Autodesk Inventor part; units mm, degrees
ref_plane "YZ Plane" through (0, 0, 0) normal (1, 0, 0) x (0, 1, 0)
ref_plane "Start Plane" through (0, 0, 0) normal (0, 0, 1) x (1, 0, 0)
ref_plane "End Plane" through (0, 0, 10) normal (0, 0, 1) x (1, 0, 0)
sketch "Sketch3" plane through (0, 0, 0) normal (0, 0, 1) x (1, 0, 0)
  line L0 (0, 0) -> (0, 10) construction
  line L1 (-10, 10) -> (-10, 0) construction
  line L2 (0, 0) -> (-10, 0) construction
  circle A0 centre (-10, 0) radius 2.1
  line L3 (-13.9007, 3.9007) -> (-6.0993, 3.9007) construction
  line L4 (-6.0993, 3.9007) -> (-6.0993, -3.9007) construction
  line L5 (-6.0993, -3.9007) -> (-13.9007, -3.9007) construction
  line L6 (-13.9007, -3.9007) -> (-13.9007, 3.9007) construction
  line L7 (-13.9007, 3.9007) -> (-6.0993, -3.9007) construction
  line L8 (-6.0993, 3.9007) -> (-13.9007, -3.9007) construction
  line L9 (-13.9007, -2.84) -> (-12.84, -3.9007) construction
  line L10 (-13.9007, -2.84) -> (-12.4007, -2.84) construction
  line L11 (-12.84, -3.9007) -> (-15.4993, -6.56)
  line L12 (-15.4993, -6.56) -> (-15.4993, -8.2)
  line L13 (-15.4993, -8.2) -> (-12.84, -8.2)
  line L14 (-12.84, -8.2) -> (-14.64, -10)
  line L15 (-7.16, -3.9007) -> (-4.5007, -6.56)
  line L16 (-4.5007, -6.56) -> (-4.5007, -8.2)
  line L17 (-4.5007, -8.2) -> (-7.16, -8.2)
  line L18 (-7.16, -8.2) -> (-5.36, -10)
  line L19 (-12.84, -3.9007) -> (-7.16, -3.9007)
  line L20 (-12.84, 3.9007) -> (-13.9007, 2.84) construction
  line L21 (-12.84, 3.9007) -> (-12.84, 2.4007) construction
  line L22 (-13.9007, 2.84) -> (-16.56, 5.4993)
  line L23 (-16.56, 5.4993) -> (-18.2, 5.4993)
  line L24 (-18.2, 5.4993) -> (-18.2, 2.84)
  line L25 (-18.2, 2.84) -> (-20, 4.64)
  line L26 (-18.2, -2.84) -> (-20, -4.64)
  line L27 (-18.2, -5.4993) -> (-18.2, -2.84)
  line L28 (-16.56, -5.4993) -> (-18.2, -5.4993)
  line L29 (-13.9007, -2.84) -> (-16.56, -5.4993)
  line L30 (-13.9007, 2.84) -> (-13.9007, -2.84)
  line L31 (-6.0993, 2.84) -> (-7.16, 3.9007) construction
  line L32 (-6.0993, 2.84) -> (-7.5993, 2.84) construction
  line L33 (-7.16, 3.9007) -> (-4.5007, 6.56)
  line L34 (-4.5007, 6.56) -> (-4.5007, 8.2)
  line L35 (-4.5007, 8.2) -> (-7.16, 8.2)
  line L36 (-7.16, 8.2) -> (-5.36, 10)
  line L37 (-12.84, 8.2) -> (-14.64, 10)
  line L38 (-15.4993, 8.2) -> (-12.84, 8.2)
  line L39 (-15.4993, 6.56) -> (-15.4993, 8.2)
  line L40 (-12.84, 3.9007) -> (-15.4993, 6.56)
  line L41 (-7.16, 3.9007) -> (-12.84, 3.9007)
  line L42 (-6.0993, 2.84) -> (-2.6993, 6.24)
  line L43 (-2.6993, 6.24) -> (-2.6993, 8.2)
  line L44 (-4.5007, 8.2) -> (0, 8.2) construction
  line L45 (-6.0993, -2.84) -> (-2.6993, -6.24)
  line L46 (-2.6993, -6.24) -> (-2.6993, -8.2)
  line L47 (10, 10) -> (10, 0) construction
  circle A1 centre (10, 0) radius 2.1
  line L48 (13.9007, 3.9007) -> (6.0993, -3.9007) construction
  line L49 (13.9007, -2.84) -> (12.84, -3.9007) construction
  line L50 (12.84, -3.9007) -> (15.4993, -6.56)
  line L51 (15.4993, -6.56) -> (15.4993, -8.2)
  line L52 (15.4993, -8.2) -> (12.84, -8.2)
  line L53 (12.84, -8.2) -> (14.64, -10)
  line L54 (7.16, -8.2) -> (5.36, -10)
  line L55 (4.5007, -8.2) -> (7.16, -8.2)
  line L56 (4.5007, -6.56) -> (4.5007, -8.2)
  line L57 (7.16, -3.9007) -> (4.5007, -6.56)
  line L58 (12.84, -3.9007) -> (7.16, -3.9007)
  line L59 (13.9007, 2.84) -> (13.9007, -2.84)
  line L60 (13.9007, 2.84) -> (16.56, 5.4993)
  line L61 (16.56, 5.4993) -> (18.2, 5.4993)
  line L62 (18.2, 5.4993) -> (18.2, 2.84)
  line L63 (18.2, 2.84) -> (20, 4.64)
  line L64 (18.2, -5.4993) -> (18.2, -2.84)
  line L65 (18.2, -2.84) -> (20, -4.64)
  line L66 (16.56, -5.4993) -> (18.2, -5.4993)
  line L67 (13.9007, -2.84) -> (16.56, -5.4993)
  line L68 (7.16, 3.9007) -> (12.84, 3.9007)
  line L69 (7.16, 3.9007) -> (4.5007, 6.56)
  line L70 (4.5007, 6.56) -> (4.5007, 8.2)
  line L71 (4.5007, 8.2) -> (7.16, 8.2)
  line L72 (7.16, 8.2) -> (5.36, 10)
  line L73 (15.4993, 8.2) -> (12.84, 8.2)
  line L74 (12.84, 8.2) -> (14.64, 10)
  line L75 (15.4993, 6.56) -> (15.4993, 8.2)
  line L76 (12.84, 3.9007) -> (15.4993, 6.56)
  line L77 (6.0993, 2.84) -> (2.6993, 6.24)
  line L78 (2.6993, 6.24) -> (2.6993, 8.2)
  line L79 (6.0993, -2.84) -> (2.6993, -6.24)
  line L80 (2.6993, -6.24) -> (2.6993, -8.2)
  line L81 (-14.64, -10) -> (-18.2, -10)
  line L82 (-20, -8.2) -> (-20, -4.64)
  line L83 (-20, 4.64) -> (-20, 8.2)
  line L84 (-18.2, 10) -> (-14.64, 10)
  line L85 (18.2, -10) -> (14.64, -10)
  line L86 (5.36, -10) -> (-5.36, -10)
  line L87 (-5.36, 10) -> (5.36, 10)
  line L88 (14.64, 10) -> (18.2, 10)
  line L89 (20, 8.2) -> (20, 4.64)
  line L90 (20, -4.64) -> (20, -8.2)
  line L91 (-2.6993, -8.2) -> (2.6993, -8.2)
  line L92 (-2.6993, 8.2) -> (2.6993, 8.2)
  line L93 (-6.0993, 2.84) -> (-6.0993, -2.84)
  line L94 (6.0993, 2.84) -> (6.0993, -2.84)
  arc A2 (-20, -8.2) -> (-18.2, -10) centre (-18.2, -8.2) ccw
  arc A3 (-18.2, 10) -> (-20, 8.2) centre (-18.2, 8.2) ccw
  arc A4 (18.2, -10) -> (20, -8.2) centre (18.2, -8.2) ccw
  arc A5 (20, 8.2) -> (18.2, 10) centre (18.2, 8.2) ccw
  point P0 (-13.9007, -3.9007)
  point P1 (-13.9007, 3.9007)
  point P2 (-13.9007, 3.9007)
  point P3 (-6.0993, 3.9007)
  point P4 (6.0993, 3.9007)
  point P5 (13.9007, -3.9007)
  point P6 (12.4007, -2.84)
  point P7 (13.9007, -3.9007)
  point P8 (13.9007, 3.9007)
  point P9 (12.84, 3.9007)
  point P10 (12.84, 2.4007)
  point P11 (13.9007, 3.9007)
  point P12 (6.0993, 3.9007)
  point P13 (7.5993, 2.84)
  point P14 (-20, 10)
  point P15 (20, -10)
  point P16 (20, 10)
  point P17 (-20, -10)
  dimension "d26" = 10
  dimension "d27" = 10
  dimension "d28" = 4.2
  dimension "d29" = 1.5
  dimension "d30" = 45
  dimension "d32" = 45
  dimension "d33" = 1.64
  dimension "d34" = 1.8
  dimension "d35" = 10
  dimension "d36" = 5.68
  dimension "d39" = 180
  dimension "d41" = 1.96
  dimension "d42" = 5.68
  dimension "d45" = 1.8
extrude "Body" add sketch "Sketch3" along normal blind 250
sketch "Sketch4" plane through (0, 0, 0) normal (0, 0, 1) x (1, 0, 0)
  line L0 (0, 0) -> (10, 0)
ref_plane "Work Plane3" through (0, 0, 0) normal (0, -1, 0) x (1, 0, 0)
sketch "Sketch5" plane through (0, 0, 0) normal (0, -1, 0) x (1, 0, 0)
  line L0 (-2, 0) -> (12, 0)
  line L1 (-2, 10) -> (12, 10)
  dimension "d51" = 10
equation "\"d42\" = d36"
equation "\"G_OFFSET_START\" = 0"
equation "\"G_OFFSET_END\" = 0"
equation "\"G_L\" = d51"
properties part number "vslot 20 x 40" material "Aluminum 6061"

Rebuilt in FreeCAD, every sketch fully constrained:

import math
import FreeCAD as App
import Part
import Sketcher


def add_polygon(sketch, points):
    """Adds a closed chain of lines whose ends are joined by coincident constraints."""
    first, n = sketch.GeometryCount, len(points)
    for a, b in zip(points, points[1:] + points[:1]):
        sketch.addGeometry(Part.LineSegment(App.Vector(*a, 0), App.Vector(*b, 0)), False)
    for i in range(n):
        sketch.addConstraint(Sketcher.Constraint("Coincident", first + i, 2, first + (i + 1) % n, 1))

doc = App.newDocument("Part")
body = doc.addObject("PartDesign::Body", "Body")

# Sketch on XY plane
sketch1 = body.newObject("Sketcher::SketchObject", "Sketch")
sketch1.AttachmentSupport = (doc.getObject("XY_Plane"), [""])
sketch1.MapMode = "FlatFace"
sketch1.addGeometry(Part.LineSegment(App.Vector(-15.4993, -6.56, 0), App.Vector(-12.84, -3.9007, 0)), False)  # 0
sketch1.addGeometry(Part.LineSegment(App.Vector(-12.84, -3.9007, 0), App.Vector(-7.16, -3.9007, 0)), False)  # 1
sketch1.addGeometry(Part.LineSegment(App.Vector(-7.16, -3.9007, 0), App.Vector(-4.5007, -6.56, 0)), False)  # 2
sketch1.addGeometry(Part.LineSegment(App.Vector(-4.5007, -6.56, 0), App.Vector(-4.5007, -8.2, 0)), False)  # 3
sketch1.addGeometry(Part.LineSegment(App.Vector(-4.5007, -8.2, 0), App.Vector(-7.16, -8.2, 0)), False)  # 4
sketch1.addGeometry(Part.LineSegment(App.Vector(-7.16, -8.2, 0), App.Vector(-5.36, -10, 0)), False)  # 5
sketch1.addGeometry(Part.LineSegment(App.Vector(-5.36, -10, 0), App.Vector(5.36, -10, 0)), False)  # 6
sketch1.addGeometry(Part.LineSegment(App.Vector(5.36, -10, 0), App.Vector(7.16, -8.2, 0)), False)  # 7
sketch1.addGeometry(Part.LineSegment(App.Vector(7.16, -8.2, 0), App.Vector(4.5007, -8.2, 0)), False)  # 8
sketch1.addGeometry(Part.LineSegment(App.Vector(4.5007, -8.2, 0), App.Vector(4.5007, -6.56, 0)), False)  # 9
sketch1.addGeometry(Part.LineSegment(App.Vector(4.5007, -6.56, 0), App.Vector(7.16, -3.9007, 0)), False)  # 10
sketch1.addGeometry(Part.LineSegment(App.Vector(7.16, -3.9007, 0), App.Vector(12.84, -3.9007, 0)), False)  # 11
sketch1.addGeometry(Part.LineSegment(App.Vector(12.84, -3.9007, 0), App.Vector(15.4993, -6.56, 0)), False)  # 12
sketch1.addGeometry(Part.LineSegment(App.Vector(15.4993, -6.56, 0), App.Vector(15.4993, -8.2, 0)), False)  # 13
sketch1.addGeometry(Part.LineSegment(App.Vector(15.4993, -8.2, 0), App.Vector(12.84, -8.2, 0)), False)  # 14
sketch1.addGeometry(Part.LineSegment(App.Vector(12.84, -8.2, 0), App.Vector(14.64, -10, 0)), False)  # 15
sketch1.addGeometry(Part.LineSegment(App.Vector(14.64, -10, 0), App.Vector(18.2, -10, 0)), False)  # 16
sketch1.addGeometry(Part.ArcOfCircle(Part.Circle(App.Vector(18.2, -8.2, 0), App.Vector(0, 0, 1), 1.8), math.radians(-90), math.radians(0)), False)  # 17
sketch1.addGeometry(Part.LineSegment(App.Vector(20, -8.2, 0), App.Vector(20, -4.64, 0)), False)  # 18
sketch1.addGeometry(Part.LineSegment(App.Vector(20, -4.64, 0), App.Vector(18.2, -2.84, 0)), False)  # 19
sketch1.addGeometry(Part.LineSegment(App.Vector(18.2, -2.84, 0), App.Vector(18.2, -5.4993, 0)), False)  # 20
sketch1.addGeometry(Part.LineSegment(App.Vector(18.2, -5.4993, 0), App.Vector(16.56, -5.4993, 0)), False)  # 21
sketch1.addGeometry(Part.LineSegment(App.Vector(16.56, -5.4993, 0), App.Vector(13.9007, -2.84, 0)), False)  # 22
sketch1.addGeometry(Part.LineSegment(App.Vector(13.9007, -2.84, 0), App.Vector(13.9007, 2.84, 0)), False)  # 23
sketch1.addGeometry(Part.LineSegment(App.Vector(13.9007, 2.84, 0), App.Vector(16.56, 5.4993, 0)), False)  # 24
sketch1.addGeometry(Part.LineSegment(App.Vector(16.56, 5.4993, 0), App.Vector(18.2, 5.4993, 0)), False)  # 25
sketch1.addGeometry(Part.LineSegment(App.Vector(18.2, 5.4993, 0), App.Vector(18.2, 2.84, 0)), False)  # 26
sketch1.addGeometry(Part.LineSegment(App.Vector(18.2, 2.84, 0), App.Vector(20, 4.64, 0)), False)  # 27
sketch1.addGeometry(Part.LineSegment(App.Vector(20, 4.64, 0), App.Vector(20, 8.2, 0)), False)  # 28
sketch1.addGeometry(Part.ArcOfCircle(Part.Circle(App.Vector(18.2, 8.2, 0), App.Vector(0, 0, 1), 1.8), math.radians(0), math.radians(90)), False)  # 29
sketch1.addGeometry(Part.LineSegment(App.Vector(18.2, 10, 0), App.Vector(14.64, 10, 0)), False)  # 30
sketch1.addGeometry(Part.LineSegment(App.Vector(14.64, 10, 0), App.Vector(12.84, 8.2, 0)), False)  # 31
sketch1.addGeometry(Part.LineSegment(App.Vector(12.84, 8.2, 0), App.Vector(15.4993, 8.2, 0)), False)  # 32
sketch1.addGeometry(Part.LineSegment(App.Vector(15.4993, 8.2, 0), App.Vector(15.4993, 6.56, 0)), False)  # 33
sketch1.addGeometry(Part.LineSegment(App.Vector(15.4993, 6.56, 0), App.Vector(12.84, 3.9007, 0)), False)  # 34
sketch1.addGeometry(Part.LineSegment(App.Vector(12.84, 3.9007, 0), App.Vector(7.16, 3.9007, 0)), False)  # 35
sketch1.addGeometry(Part.LineSegment(App.Vector(7.16, 3.9007, 0), App.Vector(4.5007, 6.56, 0)), False)  # 36
sketch1.addGeometry(Part.LineSegment(App.Vector(4.5007, 6.56, 0), App.Vector(4.5007, 8.2, 0)), False)  # 37
sketch1.addGeometry(Part.LineSegment(App.Vector(4.5007, 8.2, 0), App.Vector(7.16, 8.2, 0)), False)  # 38
sketch1.addGeometry(Part.LineSegment(App.Vector(7.16, 8.2, 0), App.Vector(5.36, 10, 0)), False)  # 39
sketch1.addGeometry(Part.LineSegment(App.Vector(5.36, 10, 0), App.Vector(-5.36, 10, 0)), False)  # 40
sketch1.addGeometry(Part.LineSegment(App.Vector(-5.36, 10, 0), App.Vector(-7.16, 8.2, 0)), False)  # 41
sketch1.addGeometry(Part.LineSegment(App.Vector(-7.16, 8.2, 0), App.Vector(-4.5007, 8.2, 0)), False)  # 42
sketch1.addGeometry(Part.LineSegment(App.Vector(-4.5007, 8.2, 0), App.Vector(-4.5007, 6.56, 0)), False)  # 43
sketch1.addGeometry(Part.LineSegment(App.Vector(-4.5007, 6.56, 0), App.Vector(-7.16, 3.9007, 0)), False)  # 44
sketch1.addGeometry(Part.LineSegment(App.Vector(-7.16, 3.9007, 0), App.Vector(-12.84, 3.9007, 0)), False)  # 45
sketch1.addGeometry(Part.LineSegment(App.Vector(-12.84, 3.9007, 0), App.Vector(-15.4993, 6.56, 0)), False)  # 46
sketch1.addGeometry(Part.LineSegment(App.Vector(-15.4993, 6.56, 0), App.Vector(-15.4993, 8.2, 0)), False)  # 47
sketch1.addGeometry(Part.LineSegment(App.Vector(-15.4993, 8.2, 0), App.Vector(-12.84, 8.2, 0)), False)  # 48
sketch1.addGeometry(Part.LineSegment(App.Vector(-12.84, 8.2, 0), App.Vector(-14.64, 10, 0)), False)  # 49
sketch1.addGeometry(Part.LineSegment(App.Vector(-14.64, 10, 0), App.Vector(-18.2, 10, 0)), False)  # 50
sketch1.addGeometry(Part.ArcOfCircle(Part.Circle(App.Vector(-18.2, 8.2, 0), App.Vector(0, 0, 1), 1.8), math.radians(90), math.radians(180)), False)  # 51
sketch1.addGeometry(Part.LineSegment(App.Vector(-20, 8.2, 0), App.Vector(-20, 4.64, 0)), False)  # 52
sketch1.addGeometry(Part.LineSegment(App.Vector(-20, 4.64, 0), App.Vector(-18.2, 2.84, 0)), False)  # 53
sketch1.addGeometry(Part.LineSegment(App.Vector(-18.2, 2.84, 0), App.Vector(-18.2, 5.4993, 0)), False)  # 54
sketch1.addGeometry(Part.LineSegment(App.Vector(-18.2, 5.4993, 0), App.Vector(-16.56, 5.4993, 0)), False)  # 55
sketch1.addGeometry(Part.LineSegment(App.Vector(-16.56, 5.4993, 0), App.Vector(-13.9007, 2.84, 0)), False)  # 56
sketch1.addGeometry(Part.LineSegment(App.Vector(-13.9007, 2.84, 0), App.Vector(-13.9007, -2.84, 0)), False)  # 57
sketch1.addGeometry(Part.LineSegment(App.Vector(-13.9007, -2.84, 0), App.Vector(-16.56, -5.4993, 0)), False)  # 58
sketch1.addGeometry(Part.LineSegment(App.Vector(-16.56, -5.4993, 0), App.Vector(-18.2, -5.4993, 0)), False)  # 59
sketch1.addGeometry(Part.LineSegment(App.Vector(-18.2, -5.4993, 0), App.Vector(-18.2, -2.84, 0)), False)  # 60
sketch1.addGeometry(Part.LineSegment(App.Vector(-18.2, -2.84, 0), App.Vector(-20, -4.64, 0)), False)  # 61
sketch1.addGeometry(Part.LineSegment(App.Vector(-20, -4.64, 0), App.Vector(-20, -8.2, 0)), False)  # 62
sketch1.addGeometry(Part.ArcOfCircle(Part.Circle(App.Vector(-18.2, -8.2, 0), App.Vector(0, 0, 1), 1.8), math.radians(180), math.radians(270)), False)  # 63
sketch1.addGeometry(Part.LineSegment(App.Vector(-18.2, -10, 0), App.Vector(-14.64, -10, 0)), False)  # 64
sketch1.addGeometry(Part.LineSegment(App.Vector(-14.64, -10, 0), App.Vector(-12.84, -8.2, 0)), False)  # 65
sketch1.addGeometry(Part.LineSegment(App.Vector(-12.84, -8.2, 0), App.Vector(-15.4993, -8.2, 0)), False)  # 66
sketch1.addGeometry(Part.LineSegment(App.Vector(-15.4993, -8.2, 0), App.Vector(-15.4993, -6.56, 0)), False)  # 67
sketch1.addGeometry(Part.Circle(App.Vector(-10, 0, 0), App.Vector(0, 0, 1), 2.1), False)  # 68
add_polygon(sketch1, [(-6.0993, -2.84), (-6.0993, 2.84), (-2.6993, 6.24), (-2.6993, 8.2), (2.6993, 8.2), (2.6993, 6.24), (6.0993, 2.84), (6.0993, -2.84), (2.6993, -6.24), (2.6993, -8.2), (-2.6993, -8.2), (-2.6993, -6.24)])  # lines 69-80
sketch1.addGeometry(Part.Circle(App.Vector(10, 0, 0), App.Vector(0, 0, 1), 2.1), False)  # 81
sketch1.addConstraint([
    Sketcher.Constraint("Coincident", 0, 2, 1, 1),
    Sketcher.Constraint("Coincident", 1, 2, 2, 1),
    Sketcher.Constraint("Coincident", 2, 2, 3, 1),
    Sketcher.Constraint("Coincident", 3, 2, 4, 1),
    Sketcher.Constraint("Coincident", 4, 2, 5, 1),
    Sketcher.Constraint("Coincident", 5, 2, 6, 1),
    Sketcher.Constraint("Coincident", 6, 2, 7, 1),
    Sketcher.Constraint("Coincident", 7, 2, 8, 1),
    Sketcher.Constraint("Coincident", 8, 2, 9, 1),
    Sketcher.Constraint("Coincident", 9, 2, 10, 1),
    Sketcher.Constraint("Coincident", 10, 2, 11, 1),
    Sketcher.Constraint("Coincident", 11, 2, 12, 1),
    Sketcher.Constraint("Coincident", 12, 2, 13, 1),
    Sketcher.Constraint("Coincident", 13, 2, 14, 1),
    Sketcher.Constraint("Coincident", 14, 2, 15, 1),
    Sketcher.Constraint("Coincident", 15, 2, 16, 1),
    Sketcher.Constraint("Tangent", 16, 2, 17, 1),
    Sketcher.Constraint("Tangent", 17, 2, 18, 1),
    Sketcher.Constraint("Coincident", 18, 2, 19, 1),
    Sketcher.Constraint("Coincident", 19, 2, 20, 1),
    Sketcher.Constraint("Coincident", 20, 2, 21, 1),
    Sketcher.Constraint("Coincident", 21, 2, 22, 1),
    Sketcher.Constraint("Coincident", 22, 2, 23, 1),
    Sketcher.Constraint("Coincident", 23, 2, 24, 1),
    Sketcher.Constraint("Coincident", 24, 2, 25, 1),
    Sketcher.Constraint("Coincident", 25, 2, 26, 1),
    Sketcher.Constraint("Coincident", 26, 2, 27, 1),
    Sketcher.Constraint("Coincident", 27, 2, 28, 1),
    Sketcher.Constraint("Tangent", 28, 2, 29, 1),
    Sketcher.Constraint("Tangent", 29, 2, 30, 1),
    Sketcher.Constraint("Coincident", 30, 2, 31, 1),
    Sketcher.Constraint("Coincident", 31, 2, 32, 1),
    Sketcher.Constraint("Coincident", 32, 2, 33, 1),
    Sketcher.Constraint("Coincident", 33, 2, 34, 1),
    Sketcher.Constraint("Coincident", 34, 2, 35, 1),
    Sketcher.Constraint("Coincident", 35, 2, 36, 1),
    Sketcher.Constraint("Coincident", 36, 2, 37, 1),
    Sketcher.Constraint("Coincident", 37, 2, 38, 1),
    Sketcher.Constraint("Coincident", 38, 2, 39, 1),
    Sketcher.Constraint("Coincident", 39, 2, 40, 1),
    Sketcher.Constraint("Coincident", 40, 2, 41, 1),
    Sketcher.Constraint("Coincident", 41, 2, 42, 1),
    Sketcher.Constraint("Coincident", 42, 2, 43, 1),
    Sketcher.Constraint("Coincident", 43, 2, 44, 1),
    Sketcher.Constraint("Coincident", 44, 2, 45, 1),
    Sketcher.Constraint("Coincident", 45, 2, 46, 1),
    Sketcher.Constraint("Coincident", 46, 2, 47, 1),
    Sketcher.Constraint("Coincident", 47, 2, 48, 1),
    Sketcher.Constraint("Coincident", 48, 2, 49, 1),
    Sketcher.Constraint("Coincident", 49, 2, 50, 1),
    Sketcher.Constraint("Tangent", 50, 2, 51, 1),
    Sketcher.Constraint("Tangent", 51, 2, 52, 1),
    Sketcher.Constraint("Coincident", 52, 2, 53, 1),
    Sketcher.Constraint("Coincident", 53, 2, 54, 1),
    Sketcher.Constraint("Coincident", 54, 2, 55, 1),
    Sketcher.Constraint("Coincident", 55, 2, 56, 1),
    Sketcher.Constraint("Coincident", 56, 2, 57, 1),
    Sketcher.Constraint("Coincident", 57, 2, 58, 1),
    Sketcher.Constraint("Coincident", 58, 2, 59, 1),
    Sketcher.Constraint("Coincident", 59, 2, 60, 1),
    Sketcher.Constraint("Coincident", 60, 2, 61, 1),
    Sketcher.Constraint("Coincident", 61, 2, 62, 1),
    Sketcher.Constraint("Tangent", 62, 2, 63, 1),
    Sketcher.Constraint("Tangent", 63, 2, 64, 1),
    Sketcher.Constraint("Coincident", 64, 2, 65, 1),
    Sketcher.Constraint("Coincident", 65, 2, 66, 1),
    Sketcher.Constraint("Coincident", 66, 2, 67, 1),
    Sketcher.Constraint("Coincident", 67, 2, 0, 1),
    Sketcher.Constraint("Horizontal", 1),
    Sketcher.Constraint("Vertical", 3),
    Sketcher.Constraint("Horizontal", 4),
    Sketcher.Constraint("Horizontal", 6),
    Sketcher.Constraint("Horizontal", 8),
    Sketcher.Constraint("Vertical", 9),
    Sketcher.Constraint("Horizontal", 11),
    Sketcher.Constraint("Vertical", 13),
    Sketcher.Constraint("Horizontal", 14),
    Sketcher.Constraint("Horizontal", 16),
    Sketcher.Constraint("Vertical", 18),
    Sketcher.Constraint("Vertical", 20),
    Sketcher.Constraint("Horizontal", 21),
    Sketcher.Constraint("Vertical", 23),
    Sketcher.Constraint("Horizontal", 25),
    Sketcher.Constraint("Vertical", 26),
    Sketcher.Constraint("Vertical", 28),
    Sketcher.Constraint("Horizontal", 30),
    Sketcher.Constraint("Horizontal", 32),
    Sketcher.Constraint("Vertical", 33),
    Sketcher.Constraint("Horizontal", 35),
    Sketcher.Constraint("Vertical", 37),
    Sketcher.Constraint("Horizontal", 38),
    Sketcher.Constraint("Horizontal", 40),
    Sketcher.Constraint("Horizontal", 42),
    Sketcher.Constraint("Vertical", 43),
    Sketcher.Constraint("Horizontal", 45),
    Sketcher.Constraint("Vertical", 47),
    Sketcher.Constraint("Horizontal", 48),
    Sketcher.Constraint("Horizontal", 50),
    Sketcher.Constraint("Vertical", 52),
    Sketcher.Constraint("Vertical", 54),
    Sketcher.Constraint("Horizontal", 55),
    Sketcher.Constraint("Vertical", 57),
    Sketcher.Constraint("Horizontal", 59),
    Sketcher.Constraint("Vertical", 60),
    Sketcher.Constraint("Vertical", 62),
    Sketcher.Constraint("Horizontal", 64),
    Sketcher.Constraint("Horizontal", 66),
    Sketcher.Constraint("Vertical", 67),
    Sketcher.Constraint("Vertical", 69),
    Sketcher.Constraint("Vertical", 71),
    Sketcher.Constraint("Horizontal", 72),
    Sketcher.Constraint("Vertical", 73),
    Sketcher.Constraint("Vertical", 75),
    Sketcher.Constraint("Vertical", 77),
    Sketcher.Constraint("Horizontal", 78),
    Sketcher.Constraint("Vertical", 79),
    Sketcher.Constraint("Equal", 17, 29),
    Sketcher.Constraint("Equal", 29, 51),
    Sketcher.Constraint("Equal", 51, 63),
    Sketcher.Constraint("Equal", 68, 81),
    Sketcher.Constraint("Symmetric", 17, 3, 51, 3, -1, 1),
    Sketcher.Constraint("Symmetric", 29, 3, 63, 3, -1, 1),
    Sketcher.Constraint("Symmetric", 68, 3, 81, 3, -1, 1),
    Sketcher.Constraint("Symmetric", 0, 2, 34, 2, -1, 1),
    Sketcher.Constraint("Symmetric", 2, 2, 36, 2, -1, 1),
    Sketcher.Constraint("Symmetric", 4, 2, 38, 2, -1, 1),
    Sketcher.Constraint("Symmetric", 5, 2, 39, 2, -1, 1),
    Sketcher.Constraint("Symmetric", 7, 2, 41, 2, -1, 1),
    Sketcher.Constraint("Symmetric", 9, 2, 43, 2, -1, 1),
    Sketcher.Constraint("Symmetric", 10, 2, 44, 2, -1, 1),
    Sketcher.Constraint("Symmetric", 12, 2, 46, 2, -1, 1),
    Sketcher.Constraint("Symmetric", 14, 2, 48, 2, -1, 1),
    Sketcher.Constraint("Symmetric", 19, 2, 53, 2, -1, 1),
    Sketcher.Constraint("Symmetric", 21, 2, 55, 2, -1, 1),
    Sketcher.Constraint("Symmetric", 22, 2, 56, 2, -1, 1),
    Sketcher.Constraint("Symmetric", 24, 2, 58, 2, -1, 1),
    Sketcher.Constraint("Symmetric", 26, 2, 60, 2, -1, 1),
    Sketcher.Constraint("Symmetric", 31, 2, 65, 2, -1, 1),
    Sketcher.Constraint("Symmetric", 33, 2, 67, 2, -1, 1),
    Sketcher.Constraint("Symmetric", 69, 2, 75, 2, -1, 1),
    Sketcher.Constraint("Symmetric", 70, 2, 76, 2, -1, 1),
    Sketcher.Constraint("Symmetric", 72, 2, 78, 2, -1, 1),
    Sketcher.Constraint("Symmetric", 29, 3, 51, 3, -2),
    Sketcher.Constraint("Symmetric", 4, 2, 7, 2, -2),
    Sketcher.Constraint("Symmetric", 2, 2, 9, 2, -2),
    Sketcher.Constraint("Symmetric", 1, 2, 10, 2, -2),
    Sketcher.Constraint("Symmetric", 33, 2, 46, 2, -2),
    Sketcher.Constraint("Symmetric", 31, 2, 48, 2, -2),
    Sketcher.Constraint("Symmetric", 26, 2, 53, 2, -2),
    Sketcher.Constraint("Symmetric", 24, 2, 55, 2, -2),
    Sketcher.Constraint("Symmetric", 70, 2, 73, 2, -2),
    Sketcher.Constraint("PointOnObject", 68, 3, -1),
    Sketcher.Constraint("Perpendicular", 0, 2),
    Sketcher.Constraint("Parallel", 2, 5),
    Sketcher.Constraint("Perpendicular", 5, 7),
    Sketcher.Constraint("Parallel", 7, 10),
    Sketcher.Constraint("Perpendicular", 10, 12),
    Sketcher.Constraint("Parallel", 12, 15),
    Sketcher.Constraint("Parallel", 15, 19),
    Sketcher.Constraint("Parallel", 19, 22),
    Sketcher.Constraint("Perpendicular", 22, 24),
    Sketcher.Constraint("Parallel", 24, 27),
    Sketcher.Constraint("Parallel", 27, 31),
    Sketcher.Constraint("Perpendicular", 34, 36),
    Sketcher.Constraint("Perpendicular", 39, 41),
    Sketcher.Constraint("Perpendicular", 44, 46),
    Sketcher.Constraint("Parallel", 46, 49),
    Sketcher.Constraint("Parallel", 49, 53),
    Sketcher.Constraint("Perpendicular", 56, 58),
    Sketcher.Constraint("Parallel", 58, 61),
    Sketcher.Constraint("Parallel", 61, 65),
    Sketcher.Constraint("Parallel", 65, 70),
    Sketcher.Constraint("Perpendicular", 70, 74),
    Sketcher.Constraint("Perpendicular", 76, 80),
    Sketcher.Constraint("Horizontal", 63, 3, 3, 2),
    Sketcher.Constraint("Horizontal", 9, 2, 12, 2),
    Sketcher.Constraint("Horizontal", 8, 2, 13, 2),
    Sketcher.Constraint("Horizontal", 6, 2, 15, 2),
    Sketcher.Constraint("Horizontal", 19, 2, 22, 2),
    Sketcher.Constraint("Horizontal", 56, 2, 69, 2),
    Sketcher.Constraint("Horizontal", 51, 2, 71, 2),
    Sketcher.Constraint("Horizontal", 76, 2, 79, 2),
    Sketcher.Constraint("Vertical", 1, 2, 4, 2),
    Sketcher.Constraint("Vertical", 11, 2, 14, 2),
    Sketcher.Constraint("Vertical", 16, 2, 19, 2),
    Sketcher.Constraint("Equal", 59, 3),
    Sketcher.Constraint("Equal", 64, 18),
    Sketcher.Constraint("Equal", 66, 20),
    Sketcher.Constraint("Equal", 45, 23),
    Sketcher.Constraint("Diameter", 68, 4.2),
    Sketcher.Constraint("Radius", 17, 1.8),
    Sketcher.Constraint("DistanceX", 68, 3, -1, 1, 10.0),
    Sketcher.Constraint("DistanceY", 5, 2, -1, 1, 10.0),
    Sketcher.Constraint("DistanceX", 1, 1, 1, 2, 5.68),
    Sketcher.Constraint("DistanceX", 21, 2, 21, 1, 1.64),
    Sketcher.Constraint("DistanceY", 71, 1, 71, 2, 1.96),
    Sketcher.Constraint("DistanceX", -1, 1, 17, 2, 20.0),
    Sketcher.Constraint("DistanceX", 4, 2, 4, 1, 2.6593),
    Sketcher.Constraint("DistanceX", 72, 1, 72, 2, 5.3986),
])
pad1 = body.newObject("PartDesign::Pad", "Pad")
pad1.Profile = sketch1
pad1.Length = 250

doc.recompute()
